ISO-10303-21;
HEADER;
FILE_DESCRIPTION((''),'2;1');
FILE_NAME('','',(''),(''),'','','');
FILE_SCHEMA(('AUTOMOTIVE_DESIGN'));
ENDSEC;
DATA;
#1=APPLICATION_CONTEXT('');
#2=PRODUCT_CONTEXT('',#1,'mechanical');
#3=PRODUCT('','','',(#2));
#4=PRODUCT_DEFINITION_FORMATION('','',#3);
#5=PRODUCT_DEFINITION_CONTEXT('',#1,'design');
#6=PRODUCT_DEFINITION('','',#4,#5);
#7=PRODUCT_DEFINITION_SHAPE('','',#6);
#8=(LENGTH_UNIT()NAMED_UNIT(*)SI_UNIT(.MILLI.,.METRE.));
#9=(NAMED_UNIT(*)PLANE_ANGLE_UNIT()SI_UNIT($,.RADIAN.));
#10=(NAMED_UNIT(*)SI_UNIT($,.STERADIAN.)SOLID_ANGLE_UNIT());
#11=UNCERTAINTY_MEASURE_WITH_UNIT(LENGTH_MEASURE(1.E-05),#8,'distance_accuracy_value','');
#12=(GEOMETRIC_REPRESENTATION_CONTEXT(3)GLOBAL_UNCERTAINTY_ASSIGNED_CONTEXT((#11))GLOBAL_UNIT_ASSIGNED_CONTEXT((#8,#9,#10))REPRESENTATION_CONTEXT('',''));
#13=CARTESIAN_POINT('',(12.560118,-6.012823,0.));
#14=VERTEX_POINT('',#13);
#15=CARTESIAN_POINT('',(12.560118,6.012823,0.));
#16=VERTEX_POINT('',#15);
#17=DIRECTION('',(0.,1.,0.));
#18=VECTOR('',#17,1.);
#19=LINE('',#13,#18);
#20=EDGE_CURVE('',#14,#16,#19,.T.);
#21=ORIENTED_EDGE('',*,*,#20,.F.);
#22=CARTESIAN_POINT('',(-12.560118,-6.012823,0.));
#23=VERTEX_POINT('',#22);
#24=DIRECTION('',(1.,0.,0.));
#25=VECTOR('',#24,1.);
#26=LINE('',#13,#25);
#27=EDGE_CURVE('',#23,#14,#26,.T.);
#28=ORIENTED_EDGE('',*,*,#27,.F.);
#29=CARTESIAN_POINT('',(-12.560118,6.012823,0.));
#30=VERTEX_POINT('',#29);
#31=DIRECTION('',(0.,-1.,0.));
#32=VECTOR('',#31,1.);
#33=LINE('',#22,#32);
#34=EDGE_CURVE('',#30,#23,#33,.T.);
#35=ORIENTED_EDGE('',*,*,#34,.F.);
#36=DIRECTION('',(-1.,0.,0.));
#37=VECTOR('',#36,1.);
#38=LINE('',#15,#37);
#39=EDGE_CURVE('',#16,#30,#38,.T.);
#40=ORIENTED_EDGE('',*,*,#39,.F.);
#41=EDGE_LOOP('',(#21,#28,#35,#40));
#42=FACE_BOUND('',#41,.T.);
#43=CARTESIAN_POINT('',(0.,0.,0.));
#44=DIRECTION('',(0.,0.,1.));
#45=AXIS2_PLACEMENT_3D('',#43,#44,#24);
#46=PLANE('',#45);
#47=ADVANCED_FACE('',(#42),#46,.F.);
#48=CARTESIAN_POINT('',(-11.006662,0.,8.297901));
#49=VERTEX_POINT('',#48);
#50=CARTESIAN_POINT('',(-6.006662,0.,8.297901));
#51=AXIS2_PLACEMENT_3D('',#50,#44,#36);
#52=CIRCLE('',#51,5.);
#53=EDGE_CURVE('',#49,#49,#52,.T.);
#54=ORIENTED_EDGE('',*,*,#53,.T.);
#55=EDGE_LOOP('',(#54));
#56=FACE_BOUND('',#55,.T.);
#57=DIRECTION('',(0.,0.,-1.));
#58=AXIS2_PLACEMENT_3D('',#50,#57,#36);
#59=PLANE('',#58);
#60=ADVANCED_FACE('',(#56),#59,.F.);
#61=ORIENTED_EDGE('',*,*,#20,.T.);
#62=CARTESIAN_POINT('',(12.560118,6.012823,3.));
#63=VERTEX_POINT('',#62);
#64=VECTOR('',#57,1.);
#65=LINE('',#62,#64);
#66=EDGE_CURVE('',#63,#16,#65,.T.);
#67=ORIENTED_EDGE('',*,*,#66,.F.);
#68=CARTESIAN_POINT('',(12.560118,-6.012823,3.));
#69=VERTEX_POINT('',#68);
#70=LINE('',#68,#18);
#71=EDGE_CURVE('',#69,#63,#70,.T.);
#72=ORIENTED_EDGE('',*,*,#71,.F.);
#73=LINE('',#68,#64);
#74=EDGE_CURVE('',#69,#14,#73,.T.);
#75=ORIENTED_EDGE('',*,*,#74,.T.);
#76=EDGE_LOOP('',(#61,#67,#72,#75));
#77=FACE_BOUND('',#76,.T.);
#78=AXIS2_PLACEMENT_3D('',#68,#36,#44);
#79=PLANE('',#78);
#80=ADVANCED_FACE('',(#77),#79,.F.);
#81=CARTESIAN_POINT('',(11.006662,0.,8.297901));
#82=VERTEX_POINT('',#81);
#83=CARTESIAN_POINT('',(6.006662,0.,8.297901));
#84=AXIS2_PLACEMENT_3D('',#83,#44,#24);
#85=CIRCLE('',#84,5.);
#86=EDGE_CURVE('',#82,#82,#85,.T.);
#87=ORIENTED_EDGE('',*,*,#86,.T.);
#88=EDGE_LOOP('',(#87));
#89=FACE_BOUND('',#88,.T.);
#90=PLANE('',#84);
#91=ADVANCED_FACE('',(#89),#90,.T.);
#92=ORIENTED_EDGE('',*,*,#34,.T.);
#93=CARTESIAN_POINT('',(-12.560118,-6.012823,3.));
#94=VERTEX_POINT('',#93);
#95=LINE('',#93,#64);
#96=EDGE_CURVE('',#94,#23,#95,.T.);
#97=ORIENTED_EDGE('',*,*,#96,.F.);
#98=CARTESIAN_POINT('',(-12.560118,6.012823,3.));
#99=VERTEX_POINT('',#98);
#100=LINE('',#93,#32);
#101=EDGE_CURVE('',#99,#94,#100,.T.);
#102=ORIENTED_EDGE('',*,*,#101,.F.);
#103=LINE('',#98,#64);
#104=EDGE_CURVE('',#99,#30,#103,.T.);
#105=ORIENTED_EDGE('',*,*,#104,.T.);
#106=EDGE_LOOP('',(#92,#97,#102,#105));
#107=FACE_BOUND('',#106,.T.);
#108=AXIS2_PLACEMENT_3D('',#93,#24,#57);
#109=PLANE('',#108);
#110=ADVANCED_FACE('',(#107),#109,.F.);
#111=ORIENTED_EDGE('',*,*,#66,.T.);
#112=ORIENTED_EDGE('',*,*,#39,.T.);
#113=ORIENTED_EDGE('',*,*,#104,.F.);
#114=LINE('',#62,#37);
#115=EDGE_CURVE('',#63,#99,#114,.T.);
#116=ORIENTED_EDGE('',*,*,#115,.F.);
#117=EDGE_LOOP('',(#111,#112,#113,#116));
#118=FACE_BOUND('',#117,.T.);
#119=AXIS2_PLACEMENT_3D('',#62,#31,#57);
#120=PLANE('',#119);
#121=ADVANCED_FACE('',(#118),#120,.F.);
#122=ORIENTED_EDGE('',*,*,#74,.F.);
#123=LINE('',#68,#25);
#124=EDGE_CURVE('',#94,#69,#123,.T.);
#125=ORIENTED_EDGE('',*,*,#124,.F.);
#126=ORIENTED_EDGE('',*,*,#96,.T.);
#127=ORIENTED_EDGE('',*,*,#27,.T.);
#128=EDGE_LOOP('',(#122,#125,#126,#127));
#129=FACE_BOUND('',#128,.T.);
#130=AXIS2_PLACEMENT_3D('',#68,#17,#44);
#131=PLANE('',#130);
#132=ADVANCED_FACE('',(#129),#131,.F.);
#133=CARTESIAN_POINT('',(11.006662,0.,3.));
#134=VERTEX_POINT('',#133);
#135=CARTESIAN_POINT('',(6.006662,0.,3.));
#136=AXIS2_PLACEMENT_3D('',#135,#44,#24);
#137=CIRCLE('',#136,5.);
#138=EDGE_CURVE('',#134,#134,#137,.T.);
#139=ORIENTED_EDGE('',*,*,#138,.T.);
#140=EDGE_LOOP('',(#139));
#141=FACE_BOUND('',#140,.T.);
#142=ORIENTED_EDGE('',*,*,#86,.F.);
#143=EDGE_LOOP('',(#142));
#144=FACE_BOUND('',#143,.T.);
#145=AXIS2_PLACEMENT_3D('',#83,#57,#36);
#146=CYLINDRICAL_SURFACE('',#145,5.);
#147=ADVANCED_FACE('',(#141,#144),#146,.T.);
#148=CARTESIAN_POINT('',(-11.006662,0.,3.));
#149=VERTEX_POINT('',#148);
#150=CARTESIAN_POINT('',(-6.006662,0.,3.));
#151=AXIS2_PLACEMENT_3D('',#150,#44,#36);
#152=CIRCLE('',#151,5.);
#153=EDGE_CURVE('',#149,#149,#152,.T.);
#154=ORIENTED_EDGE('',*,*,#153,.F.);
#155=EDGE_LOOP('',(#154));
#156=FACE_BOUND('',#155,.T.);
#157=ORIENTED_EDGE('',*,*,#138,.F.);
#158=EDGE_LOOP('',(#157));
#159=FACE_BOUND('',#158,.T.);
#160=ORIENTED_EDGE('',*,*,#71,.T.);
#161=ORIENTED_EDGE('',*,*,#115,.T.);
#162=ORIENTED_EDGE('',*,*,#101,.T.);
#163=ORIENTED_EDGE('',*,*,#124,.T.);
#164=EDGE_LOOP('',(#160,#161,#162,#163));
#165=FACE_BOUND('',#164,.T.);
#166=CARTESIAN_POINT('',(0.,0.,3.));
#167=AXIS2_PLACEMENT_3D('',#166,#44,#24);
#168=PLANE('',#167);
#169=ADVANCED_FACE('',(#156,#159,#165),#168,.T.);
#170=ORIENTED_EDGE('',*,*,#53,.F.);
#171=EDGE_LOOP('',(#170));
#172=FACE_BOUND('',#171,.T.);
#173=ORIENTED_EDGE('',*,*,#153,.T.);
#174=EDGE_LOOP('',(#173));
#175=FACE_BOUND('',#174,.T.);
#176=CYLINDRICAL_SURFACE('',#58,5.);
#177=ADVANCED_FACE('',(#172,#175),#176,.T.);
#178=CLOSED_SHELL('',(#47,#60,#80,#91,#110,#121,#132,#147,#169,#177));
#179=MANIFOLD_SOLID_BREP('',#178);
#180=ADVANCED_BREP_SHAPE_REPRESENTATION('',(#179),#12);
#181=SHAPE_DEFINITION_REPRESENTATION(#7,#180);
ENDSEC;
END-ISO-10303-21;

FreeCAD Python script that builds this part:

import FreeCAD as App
import Part
import Sketcher
from FreeCAD import Vector
Q = App.Units.Quantity

doc = App.newDocument("Part")
body = doc.addObject("PartDesign::Body", "Body")

# Sketch on XY plane
sketch1 = body.newObject("Sketcher::SketchObject", "Sketch")
sketch1.AttachmentSupport = (doc.getObject("XY_Plane"), [""])
sketch1.MapMode = "FlatFace"
sketch1.addGeometry([
    Part.LineSegment(Vector(-13, 6, 0), Vector(-13, -6, 0)),
    Part.LineSegment(Vector(-13, -6, 0), Vector(13, -6, 0)),
    Part.LineSegment(Vector(13, -6, 0), Vector(13, 6, 0)),
    Part.LineSegment(Vector(13, 6, 0), Vector(-13, 6, 0)),
], False)
sketch1.addConstraint([
    Sketcher.Constraint("Coincident", 0, 2, 1, 1),
    Sketcher.Constraint("Coincident", 1, 2, 2, 1),
    Sketcher.Constraint("Coincident", 2, 2, 3, 1),
    Sketcher.Constraint("Coincident", 3, 2, 0, 1),
    Sketcher.Constraint("Vertical", 0),
    Sketcher.Constraint("Horizontal", 1),
    Sketcher.Constraint("Vertical", 2),
    Sketcher.Constraint("Horizontal", 3),
    Sketcher.Constraint("Symmetric", 0, 2, 2, 2, -1, 1),
    Sketcher.Constraint("DistanceX", 1, 1, 1, 2, Q("25.120237 mm")),
    Sketcher.Constraint("DistanceY", 0, 2, 0, 1, Q("12.025645 mm")),
])
pad1 = body.newObject("PartDesign::Pad", "Pad")
pad1.Profile = sketch1
pad1.Length = 3

# Sketch on XY plane
sketch2 = body.newObject("Sketcher::SketchObject", "Sketch001")
sketch2.AttachmentSupport = (doc.getObject("XY_Plane"), [""])
sketch2.MapMode = "FlatFace"
sketch2.AttachmentOffset = App.Placement(Vector(0, 0, 3), App.Rotation())
sketch2.addGeometry([
    Part.Circle(Vector(6, 0, 0), Vector(0, 0, 1), 5),
    Part.Circle(Vector(-6, 0, 0), Vector(0, 0, 1), 5),
], False)
sketch2.addConstraint([
    Sketcher.Constraint("Equal", 0, 1),
    Sketcher.Constraint("Symmetric", 0, 3, 1, 3, -1, 1),
    Sketcher.Constraint("PointOnObject", 0, 3, -1),
    Sketcher.Constraint("Diameter", 0, Q("10 mm")),
    Sketcher.Constraint("DistanceX", -1, 1, 0, 3, Q("6.006662 mm")),
])
pad2 = body.newObject("PartDesign::Pad", "Pad001")
pad2.Profile = sketch2
pad2.Length = 5.297901

doc.recompute()
